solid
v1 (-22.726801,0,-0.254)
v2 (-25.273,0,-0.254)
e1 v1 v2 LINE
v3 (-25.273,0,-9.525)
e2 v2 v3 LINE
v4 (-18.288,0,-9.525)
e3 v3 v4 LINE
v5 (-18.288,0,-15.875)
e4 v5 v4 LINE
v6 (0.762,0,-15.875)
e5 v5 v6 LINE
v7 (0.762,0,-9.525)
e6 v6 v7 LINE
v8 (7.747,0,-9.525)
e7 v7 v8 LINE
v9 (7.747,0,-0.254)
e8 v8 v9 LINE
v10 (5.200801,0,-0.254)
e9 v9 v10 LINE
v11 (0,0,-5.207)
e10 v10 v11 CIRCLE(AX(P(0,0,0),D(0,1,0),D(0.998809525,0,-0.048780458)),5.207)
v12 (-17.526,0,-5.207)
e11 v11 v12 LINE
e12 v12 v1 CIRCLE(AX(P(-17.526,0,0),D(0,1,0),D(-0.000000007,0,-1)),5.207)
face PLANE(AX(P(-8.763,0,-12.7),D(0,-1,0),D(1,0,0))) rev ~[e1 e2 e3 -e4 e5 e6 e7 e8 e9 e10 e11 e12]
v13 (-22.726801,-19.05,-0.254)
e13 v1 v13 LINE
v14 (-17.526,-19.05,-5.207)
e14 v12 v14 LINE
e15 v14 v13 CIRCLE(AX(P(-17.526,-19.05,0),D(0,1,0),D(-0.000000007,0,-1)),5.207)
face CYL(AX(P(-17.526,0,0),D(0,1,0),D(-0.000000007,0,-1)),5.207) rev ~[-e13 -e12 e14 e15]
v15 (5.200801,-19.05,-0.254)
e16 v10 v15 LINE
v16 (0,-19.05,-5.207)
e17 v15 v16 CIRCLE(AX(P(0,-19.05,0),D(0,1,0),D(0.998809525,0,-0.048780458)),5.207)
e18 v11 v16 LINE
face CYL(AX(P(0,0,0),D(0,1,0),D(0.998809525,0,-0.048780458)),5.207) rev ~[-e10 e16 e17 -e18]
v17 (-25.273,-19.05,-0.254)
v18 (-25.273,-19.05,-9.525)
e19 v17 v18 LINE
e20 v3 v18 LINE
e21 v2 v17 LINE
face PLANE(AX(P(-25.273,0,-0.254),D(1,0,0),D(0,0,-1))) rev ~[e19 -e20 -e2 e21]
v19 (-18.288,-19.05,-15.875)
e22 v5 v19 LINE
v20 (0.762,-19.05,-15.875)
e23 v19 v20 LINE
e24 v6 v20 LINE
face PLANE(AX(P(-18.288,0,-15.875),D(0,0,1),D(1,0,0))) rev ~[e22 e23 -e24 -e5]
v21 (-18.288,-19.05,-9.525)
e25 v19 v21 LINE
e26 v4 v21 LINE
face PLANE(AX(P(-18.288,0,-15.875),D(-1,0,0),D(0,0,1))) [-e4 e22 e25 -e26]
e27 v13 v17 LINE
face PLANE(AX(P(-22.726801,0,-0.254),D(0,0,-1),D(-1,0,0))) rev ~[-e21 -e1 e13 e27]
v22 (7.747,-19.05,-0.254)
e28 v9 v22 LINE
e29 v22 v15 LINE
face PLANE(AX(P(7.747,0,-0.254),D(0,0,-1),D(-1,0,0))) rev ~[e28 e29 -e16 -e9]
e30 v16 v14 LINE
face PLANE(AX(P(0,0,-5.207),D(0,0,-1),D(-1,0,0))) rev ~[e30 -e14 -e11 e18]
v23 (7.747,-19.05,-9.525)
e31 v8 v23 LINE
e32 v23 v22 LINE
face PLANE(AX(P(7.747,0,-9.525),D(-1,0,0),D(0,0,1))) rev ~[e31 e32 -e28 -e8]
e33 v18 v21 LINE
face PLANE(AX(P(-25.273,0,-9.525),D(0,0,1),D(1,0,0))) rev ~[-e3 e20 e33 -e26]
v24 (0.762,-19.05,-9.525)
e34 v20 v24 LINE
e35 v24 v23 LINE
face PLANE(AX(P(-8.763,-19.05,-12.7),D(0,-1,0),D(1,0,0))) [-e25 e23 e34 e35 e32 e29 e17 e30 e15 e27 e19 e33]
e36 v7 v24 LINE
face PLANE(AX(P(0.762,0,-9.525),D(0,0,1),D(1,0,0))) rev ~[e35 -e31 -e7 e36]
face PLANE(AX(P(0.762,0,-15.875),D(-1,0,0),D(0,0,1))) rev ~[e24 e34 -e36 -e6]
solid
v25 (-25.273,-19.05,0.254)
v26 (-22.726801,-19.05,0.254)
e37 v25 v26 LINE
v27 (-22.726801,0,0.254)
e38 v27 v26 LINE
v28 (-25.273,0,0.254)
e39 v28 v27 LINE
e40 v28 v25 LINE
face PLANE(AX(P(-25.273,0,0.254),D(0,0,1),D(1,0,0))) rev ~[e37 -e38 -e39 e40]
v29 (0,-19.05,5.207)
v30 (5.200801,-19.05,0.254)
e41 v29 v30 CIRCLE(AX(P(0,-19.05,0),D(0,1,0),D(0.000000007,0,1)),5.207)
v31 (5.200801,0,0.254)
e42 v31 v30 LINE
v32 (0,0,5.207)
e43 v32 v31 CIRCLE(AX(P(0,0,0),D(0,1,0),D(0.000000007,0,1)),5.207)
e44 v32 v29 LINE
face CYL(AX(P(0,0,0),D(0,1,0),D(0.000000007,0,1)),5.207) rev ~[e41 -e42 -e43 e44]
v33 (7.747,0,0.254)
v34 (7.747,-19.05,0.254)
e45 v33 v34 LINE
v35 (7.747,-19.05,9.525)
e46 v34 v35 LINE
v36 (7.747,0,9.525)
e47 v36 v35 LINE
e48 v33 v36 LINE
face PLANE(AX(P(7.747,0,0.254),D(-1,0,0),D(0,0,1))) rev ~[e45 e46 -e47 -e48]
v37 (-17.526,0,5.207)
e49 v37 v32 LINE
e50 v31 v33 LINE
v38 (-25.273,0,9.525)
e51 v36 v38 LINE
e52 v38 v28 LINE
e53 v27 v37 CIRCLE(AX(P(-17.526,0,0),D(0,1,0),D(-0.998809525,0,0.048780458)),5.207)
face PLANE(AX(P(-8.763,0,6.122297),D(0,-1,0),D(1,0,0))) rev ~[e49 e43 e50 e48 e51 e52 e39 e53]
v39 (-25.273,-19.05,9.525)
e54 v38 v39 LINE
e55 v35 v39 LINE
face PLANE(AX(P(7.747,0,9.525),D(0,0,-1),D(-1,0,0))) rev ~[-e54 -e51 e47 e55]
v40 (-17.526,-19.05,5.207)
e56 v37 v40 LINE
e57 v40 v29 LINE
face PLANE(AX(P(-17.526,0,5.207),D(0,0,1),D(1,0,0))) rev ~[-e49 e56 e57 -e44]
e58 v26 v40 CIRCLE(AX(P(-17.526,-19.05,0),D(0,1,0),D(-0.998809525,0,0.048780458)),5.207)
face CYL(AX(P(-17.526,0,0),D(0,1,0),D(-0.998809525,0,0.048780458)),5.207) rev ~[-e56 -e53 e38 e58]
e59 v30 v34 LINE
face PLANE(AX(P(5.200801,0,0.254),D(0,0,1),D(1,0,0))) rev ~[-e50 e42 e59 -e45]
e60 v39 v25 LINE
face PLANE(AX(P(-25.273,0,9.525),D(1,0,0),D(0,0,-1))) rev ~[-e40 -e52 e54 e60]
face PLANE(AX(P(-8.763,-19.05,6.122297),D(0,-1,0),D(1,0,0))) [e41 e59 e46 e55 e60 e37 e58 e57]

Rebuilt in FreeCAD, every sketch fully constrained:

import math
import FreeCAD as App
import Part
import Sketcher
Q = App.Units.Quantity

doc = App.newDocument("Part")
params = doc.addObject("Spreadsheet::Sheet", "Params")
for row, (alias, value) in enumerate([
    ("sketch1_width", "1.3 in"),
    ("sketch1_radius", "0.205 in"),
    ("sketch1_width2", "0.75 in"),
    ("sketch1_width3", "0.69 in"),
    ("sketch1_height", "0.25 in"),
    ("pad1_length", "0.75 in"),
], start=1):
    params.set(f"A{row}", alias)
    params.set(f"B{row}", "=" + value)
    params.setAlias(f"B{row}", alias)

body = doc.addObject("PartDesign::Body", "Body")
body.AllowCompound = True

# Sketch on XZ plane
sketch1 = doc.addObject("Sketcher::SketchObject", "Sketch")
body.addObject(sketch1)
sketch1.AttachmentSupport = (doc.XZ_Plane, [""])
sketch1.MapMode = "FlatFace"
sketch1.addGeometry([
    Part.LineSegment(App.Vector(-18.3, -9.5, 0), App.Vector(-18.3, -15.9, 0)),  # 0
    Part.LineSegment(App.Vector(-18.3, -15.9, 0), App.Vector(0.8, -15.9, 0)),  # 1
    Part.LineSegment(App.Vector(0.8, -15.9, 0), App.Vector(0.8, -9.5, 0)),  # 2
    Part.LineSegment(App.Vector(0.8, -9.5, 0), App.Vector(7.7, -9.5, 0)),  # 3
    Part.LineSegment(App.Vector(7.7, -9.5, 0), App.Vector(7.7, -0.3, 0)),  # 4
    Part.LineSegment(App.Vector(7.7, -0.3, 0), App.Vector(5.2, -0.3, 0)),  # 5
    Part.ArcOfCircle(Part.Circle(App.Vector(0, 0, 0), App.Vector(0, 0, 1), 5.2), math.radians(-90), math.radians(-3)),  # 6
    Part.LineSegment(App.Vector(0, -5.2, 0), App.Vector(-17.5, -5.2, 0)),  # 7
    Part.ArcOfCircle(Part.Circle(App.Vector(-17.5, 0, 0), App.Vector(0, 0, 1), 5.2), math.radians(-177), math.radians(-90)),  # 8
    Part.LineSegment(App.Vector(-22.7, -0.3, 0), App.Vector(-25.3, -0.3, 0)),  # 9
    Part.LineSegment(App.Vector(-25.3, -0.3, 0), App.Vector(-25.3, -9.5, 0)),  # 10
    Part.LineSegment(App.Vector(-25.3, -9.5, 0), App.Vector(-18.3, -9.5, 0)),  # 11
    Part.ArcOfCircle(Part.Circle(App.Vector(-17.5, 0, 0), App.Vector(0, 0, 1), 5.2), math.radians(90), math.radians(177)),  # 12
    Part.LineSegment(App.Vector(-17.5, 5.2, 0), App.Vector(0, 5.2, 0)),  # 13
    Part.ArcOfCircle(Part.Circle(App.Vector(0, 0, 0), App.Vector(0, 0, 1), 5.2), math.radians(3), math.radians(90)),  # 14
    Part.LineSegment(App.Vector(5.2, 0.3, 0), App.Vector(7.7, 0.3, 0)),  # 15
    Part.LineSegment(App.Vector(7.7, 0.3, 0), App.Vector(7.7, 9.5, 0)),  # 16
    Part.LineSegment(App.Vector(7.7, 9.5, 0), App.Vector(-25.3, 9.5, 0)),  # 17
    Part.LineSegment(App.Vector(-25.3, 9.5, 0), App.Vector(-25.3, 0.3, 0)),  # 18
    Part.LineSegment(App.Vector(-25.3, 0.3, 0), App.Vector(-22.7, 0.3, 0)),  # 19
], False)
sketch1.addConstraint([
    Sketcher.Constraint("Coincident", 0, 2, 1, 1),
    Sketcher.Constraint("Coincident", 1, 2, 2, 1),
    Sketcher.Constraint("Coincident", 2, 2, 3, 1),
    Sketcher.Constraint("Coincident", 3, 2, 4, 1),
    Sketcher.Constraint("Coincident", 4, 2, 5, 1),
    Sketcher.Constraint("Coincident", 5, 2, 6, 2),
    Sketcher.Constraint("Tangent", 6, 1, 7, 1),
    Sketcher.Constraint("Tangent", 7, 2, 8, 2),
    Sketcher.Constraint("Coincident", 8, 1, 9, 1),
    Sketcher.Constraint("Coincident", 9, 2, 10, 1),
    Sketcher.Constraint("Coincident", 10, 2, 11, 1),
    Sketcher.Constraint("Coincident", 11, 2, 0, 1),
    Sketcher.Constraint("Tangent", 12, 1, 13, 1),
    Sketcher.Constraint("Tangent", 13, 2, 14, 2),
    Sketcher.Constraint("Coincident", 14, 1, 15, 1),
    Sketcher.Constraint("Coincident", 15, 2, 16, 1),
    Sketcher.Constraint("Coincident", 16, 2, 17, 1),
    Sketcher.Constraint("Coincident", 17, 2, 18, 1),
    Sketcher.Constraint("Coincident", 18, 2, 19, 1),
    Sketcher.Constraint("Coincident", 19, 2, 12, 2),
    Sketcher.Constraint("Vertical", 0),
    Sketcher.Constraint("Horizontal", 1),
    Sketcher.Constraint("Vertical", 2),
    Sketcher.Constraint("Horizontal", 3),
    Sketcher.Constraint("Vertical", 4),
    Sketcher.Constraint("Horizontal", 5),
    Sketcher.Constraint("Horizontal", 7),
    Sketcher.Constraint("Horizontal", 9),
    Sketcher.Constraint("Vertical", 10),
    Sketcher.Constraint("Horizontal", 11),
    Sketcher.Constraint("Horizontal", 13),
    Sketcher.Constraint("Horizontal", 15),
    Sketcher.Constraint("Vertical", 16),
    Sketcher.Constraint("Horizontal", 17),
    Sketcher.Constraint("Vertical", 18),
    Sketcher.Constraint("Horizontal", 19),
    Sketcher.Constraint("Coincident", 6, 3, -1, 1),
    Sketcher.Constraint("Coincident", 14, 3, -1, 1),
    Sketcher.Constraint("Coincident", 12, 3, 8, 3),
    Sketcher.Constraint("Equal", 6, 8),
    Sketcher.Constraint("Equal", 8, 12),
    Sketcher.Constraint("Symmetric", 4, 2, 15, 2, -1),
    Sketcher.Constraint("Symmetric", 10, 2, 17, 2, -1),
    Sketcher.Constraint("Horizontal", 5, 2, 8, 1),
    Sketcher.Constraint("Horizontal", 3, 2, 10, 2),
    Sketcher.Constraint("Horizontal", 15, 2, 18, 2),
    Sketcher.Constraint("Equal", 5, 9),
    Sketcher.Constraint("Equal", 3, 11),
    Sketcher.Constraint("DistanceX", 17, 2, 17, 1, Q("1.3 in")),
    Sketcher.Constraint("Radius", 6, Q("0.205 in")),
    Sketcher.Constraint("DistanceX", 1, 1, 1, 2, Q("0.75 in")),
    Sketcher.Constraint("DistanceX", 7, 2, 7, 1, Q("0.69 in")),
    Sketcher.Constraint("DistanceY", 0, 2, 0, 1, Q("0.25 in")),
    Sketcher.Constraint("DistanceY", 4, 1, 4, 2, Q("0.365 in")),
    Sketcher.Constraint("DistanceY", 4, 2, -1, 1, Q("0.01 in")),
])
sketch1.setExpression("Constraints[48]", "Params.sketch1_width")
sketch1.setExpression("Constraints[49]", "Params.sketch1_radius")
sketch1.setExpression("Constraints[50]", "Params.sketch1_width2")
sketch1.setExpression("Constraints[51]", "Params.sketch1_width3")
sketch1.setExpression("Constraints[52]", "Params.sketch1_height")
pad1 = doc.addObject("PartDesign::Pad", "Pad")
body.addObject(pad1)
pad1.Profile = sketch1
pad1.setExpression("Length", "Params.pad1_length")

doc.recompute()
